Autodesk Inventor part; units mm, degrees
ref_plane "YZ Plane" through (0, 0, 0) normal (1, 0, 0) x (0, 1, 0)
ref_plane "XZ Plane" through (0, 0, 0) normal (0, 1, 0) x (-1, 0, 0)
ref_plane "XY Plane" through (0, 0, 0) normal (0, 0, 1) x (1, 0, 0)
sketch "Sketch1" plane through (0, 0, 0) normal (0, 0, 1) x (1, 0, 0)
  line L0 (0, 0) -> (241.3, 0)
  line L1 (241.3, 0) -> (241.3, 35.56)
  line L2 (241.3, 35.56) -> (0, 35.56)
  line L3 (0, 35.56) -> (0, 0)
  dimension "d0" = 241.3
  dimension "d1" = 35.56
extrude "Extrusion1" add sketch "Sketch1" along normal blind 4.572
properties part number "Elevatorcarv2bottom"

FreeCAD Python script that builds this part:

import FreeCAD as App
import Part
import Sketcher
from FreeCAD import Vector
Q = App.Units.Quantity

doc = App.newDocument("Part")
body = doc.addObject("PartDesign::Body", "Body")

sketch1 = doc.addObject("Sketcher::SketchObject", "Sketch")
body.addObject(sketch1)
sketch1.AttachmentSupport = (doc.XY_Plane, [""])
sketch1.MapMode = "FlatFace"
sketch1.addGeometry([
    Part.LineSegment(Vector(0, 36, 0), Vector(0, 0, 0)),
    Part.LineSegment(Vector(0, 0, 0), Vector(241, 0, 0)),
    Part.LineSegment(Vector(241, 0, 0), Vector(241, 36, 0)),
    Part.LineSegment(Vector(241, 36, 0), Vector(0, 36, 0)),
], False)
sketch1.addConstraint([
    Sketcher.Constraint("Coincident", 0, 2, 1, 1),
    Sketcher.Constraint("Coincident", 1, 2, 2, 1),
    Sketcher.Constraint("Coincident", 2, 2, 3, 1),
    Sketcher.Constraint("Coincident", 3, 2, 0, 1),
    Sketcher.Constraint("Vertical", 0),
    Sketcher.Constraint("Horizontal", 1),
    Sketcher.Constraint("Vertical", 2),
    Sketcher.Constraint("Horizontal", 3),
    Sketcher.Constraint("Coincident", 0, 2, -1, 1),
    Sketcher.Constraint("DistanceX", 1, 1, 1, 2, Q("9.5 in")),
    Sketcher.Constraint("DistanceY", 0, 2, 0, 1, Q("1.4 in")),
])
pad1 = doc.addObject("PartDesign::Pad", "Pad")
body.addObject(pad1)
pad1.Profile = sketch1
pad1.Length = Q("0.18 in")

doc.recompute()
